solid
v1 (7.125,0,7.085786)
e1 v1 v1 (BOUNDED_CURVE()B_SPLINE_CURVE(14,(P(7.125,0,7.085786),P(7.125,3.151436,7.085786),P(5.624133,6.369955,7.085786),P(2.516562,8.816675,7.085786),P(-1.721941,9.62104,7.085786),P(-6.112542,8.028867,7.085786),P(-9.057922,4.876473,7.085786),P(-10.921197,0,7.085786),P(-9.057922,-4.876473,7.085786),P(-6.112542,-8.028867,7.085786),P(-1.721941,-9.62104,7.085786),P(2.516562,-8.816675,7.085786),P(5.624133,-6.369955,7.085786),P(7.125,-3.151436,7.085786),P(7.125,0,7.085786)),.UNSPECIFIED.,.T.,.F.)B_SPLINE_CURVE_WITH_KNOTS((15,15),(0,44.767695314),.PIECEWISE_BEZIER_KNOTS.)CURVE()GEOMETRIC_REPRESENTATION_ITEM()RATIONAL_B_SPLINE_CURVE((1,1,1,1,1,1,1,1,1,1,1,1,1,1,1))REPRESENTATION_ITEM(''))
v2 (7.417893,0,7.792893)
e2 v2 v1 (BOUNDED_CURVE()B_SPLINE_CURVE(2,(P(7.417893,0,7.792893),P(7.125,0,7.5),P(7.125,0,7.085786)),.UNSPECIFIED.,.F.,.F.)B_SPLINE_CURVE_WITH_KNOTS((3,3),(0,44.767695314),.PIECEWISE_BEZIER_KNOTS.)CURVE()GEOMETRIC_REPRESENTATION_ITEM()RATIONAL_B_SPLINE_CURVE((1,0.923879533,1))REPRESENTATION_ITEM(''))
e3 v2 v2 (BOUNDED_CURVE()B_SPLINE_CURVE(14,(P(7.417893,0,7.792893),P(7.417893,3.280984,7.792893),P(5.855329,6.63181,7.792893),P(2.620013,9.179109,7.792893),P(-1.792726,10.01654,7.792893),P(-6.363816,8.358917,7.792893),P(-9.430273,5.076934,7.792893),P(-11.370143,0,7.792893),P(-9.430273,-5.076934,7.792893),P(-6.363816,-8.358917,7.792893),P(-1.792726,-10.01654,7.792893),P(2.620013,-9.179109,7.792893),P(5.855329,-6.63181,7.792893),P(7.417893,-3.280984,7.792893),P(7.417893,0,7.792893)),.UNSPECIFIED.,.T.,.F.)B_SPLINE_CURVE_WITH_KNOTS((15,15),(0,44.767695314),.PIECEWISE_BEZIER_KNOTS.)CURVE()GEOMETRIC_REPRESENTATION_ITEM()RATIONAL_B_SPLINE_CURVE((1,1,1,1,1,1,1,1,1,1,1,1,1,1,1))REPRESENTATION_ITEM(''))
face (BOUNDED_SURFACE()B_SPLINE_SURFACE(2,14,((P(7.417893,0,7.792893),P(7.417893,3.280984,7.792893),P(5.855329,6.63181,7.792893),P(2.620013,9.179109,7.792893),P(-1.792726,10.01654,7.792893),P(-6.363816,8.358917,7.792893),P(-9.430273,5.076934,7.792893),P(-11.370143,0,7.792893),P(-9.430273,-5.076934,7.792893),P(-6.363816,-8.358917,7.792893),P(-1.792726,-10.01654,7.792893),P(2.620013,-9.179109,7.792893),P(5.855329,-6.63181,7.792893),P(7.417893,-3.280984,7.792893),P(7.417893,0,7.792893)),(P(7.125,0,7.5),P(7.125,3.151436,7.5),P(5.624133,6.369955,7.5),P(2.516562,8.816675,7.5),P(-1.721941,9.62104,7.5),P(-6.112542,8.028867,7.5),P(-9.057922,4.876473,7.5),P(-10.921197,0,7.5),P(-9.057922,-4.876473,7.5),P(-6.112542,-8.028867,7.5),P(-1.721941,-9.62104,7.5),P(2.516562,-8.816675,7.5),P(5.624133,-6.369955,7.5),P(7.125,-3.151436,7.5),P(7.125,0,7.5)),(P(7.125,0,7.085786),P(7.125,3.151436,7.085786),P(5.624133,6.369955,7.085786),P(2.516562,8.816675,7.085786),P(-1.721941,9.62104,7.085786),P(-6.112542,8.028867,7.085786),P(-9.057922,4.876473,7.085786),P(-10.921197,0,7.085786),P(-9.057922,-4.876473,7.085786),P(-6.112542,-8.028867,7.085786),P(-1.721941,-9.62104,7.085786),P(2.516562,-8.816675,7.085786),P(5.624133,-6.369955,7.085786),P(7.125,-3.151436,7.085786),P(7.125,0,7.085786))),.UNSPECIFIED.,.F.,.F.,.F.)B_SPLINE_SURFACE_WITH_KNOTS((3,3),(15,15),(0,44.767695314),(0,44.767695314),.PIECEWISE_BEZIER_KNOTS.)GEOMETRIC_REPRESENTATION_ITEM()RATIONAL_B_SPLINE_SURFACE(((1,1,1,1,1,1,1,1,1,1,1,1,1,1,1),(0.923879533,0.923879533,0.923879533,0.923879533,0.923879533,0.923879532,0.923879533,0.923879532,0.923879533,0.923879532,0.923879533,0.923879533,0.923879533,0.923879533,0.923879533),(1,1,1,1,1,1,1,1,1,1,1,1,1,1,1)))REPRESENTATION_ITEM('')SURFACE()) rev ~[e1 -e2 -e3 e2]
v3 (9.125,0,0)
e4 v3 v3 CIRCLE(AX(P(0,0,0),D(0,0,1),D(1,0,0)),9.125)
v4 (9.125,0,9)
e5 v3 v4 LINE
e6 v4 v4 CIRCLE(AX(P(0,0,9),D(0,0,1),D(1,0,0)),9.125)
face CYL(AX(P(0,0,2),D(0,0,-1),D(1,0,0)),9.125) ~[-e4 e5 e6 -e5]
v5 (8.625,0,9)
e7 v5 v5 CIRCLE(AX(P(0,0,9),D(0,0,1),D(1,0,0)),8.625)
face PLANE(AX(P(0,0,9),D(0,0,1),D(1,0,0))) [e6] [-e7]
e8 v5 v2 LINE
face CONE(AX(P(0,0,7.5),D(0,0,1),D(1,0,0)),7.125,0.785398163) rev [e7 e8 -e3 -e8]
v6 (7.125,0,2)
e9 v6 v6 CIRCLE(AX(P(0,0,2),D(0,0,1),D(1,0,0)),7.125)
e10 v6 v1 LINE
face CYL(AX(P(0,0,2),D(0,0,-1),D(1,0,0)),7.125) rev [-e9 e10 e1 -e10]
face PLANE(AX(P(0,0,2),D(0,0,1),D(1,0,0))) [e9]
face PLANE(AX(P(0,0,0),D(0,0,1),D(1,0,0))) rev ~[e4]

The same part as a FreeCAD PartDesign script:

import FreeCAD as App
import Part
import Sketcher
Q = App.Units.Quantity


def edges_at(feature, points):
    """Names of the edges that pass closest to the given points."""
    edges = feature.Shape.Edges
    near = lambda p: min(range(len(edges)), key=lambda i: edges[i].distToShape(Part.Vertex(*p))[0])
    return sorted({f"Edge{near(p) + 1}" for p in points})

doc = App.newDocument("Part")
body = doc.addObject("PartDesign::Body", "Body")

sketch1 = body.newObject("Sketcher::SketchObject", "Sketch")
sketch1.AttachmentSupport = (doc.getObject("XY_Plane"), [""])
sketch1.MapMode = "FlatFace"
sketch1.addGeometry(Part.Circle(App.Vector(0, 0, 0), App.Vector(0, 0, 1), 9.125), False)
sketch1.addConstraint([
    Sketcher.Constraint("Coincident", 0, 3, -1, 1),
    Sketcher.Constraint("Diameter", 0, Q("18.25 mm")),
])
pad1 = body.newObject("PartDesign::Pad", "Pad")
pad1.Profile = sketch1
pad1.Length = 2

sketch2 = body.newObject("Sketcher::SketchObject", "Sketch001")
sketch2.AttachmentSupport = (doc.getObject("XY_Plane"), [""])
sketch2.MapMode = "FlatFace"
sketch2.AttachmentOffset = App.Placement(App.Vector(0, 0, 2), App.Rotation())
sketch2.addGeometry([
    Part.Circle(App.Vector(0, 0, 0), App.Vector(0, 0, 1), 9.125),
    Part.Circle(App.Vector(0, 0, 0), App.Vector(0, 0, 1), 7.125),
], False)
sketch2.addConstraint([
    Sketcher.Constraint("Coincident", 0, 3, -1, 1),
    Sketcher.Constraint("Coincident", 1, 3, -1, 1),
    Sketcher.Constraint("Diameter", 0, Q("18.25 mm")),
    Sketcher.Constraint("Diameter", 1, Q("14.25 mm")),
])
pad2 = body.newObject("PartDesign::Pad", "Pad001")
pad2.Profile = sketch2
pad2.Length = 7
doc.recompute()

chamfer = body.newObject("PartDesign::Chamfer", "Chamfer")
chamfer.Base = (pad2, edges_at(pad2, [(-7.125, 0, 9)]))
chamfer.Size = 1.5
doc.recompute()

fillet = body.newObject("PartDesign::Fillet", "Fillet")
fillet.Base = (chamfer, edges_at(chamfer, [(-7.125, 0, 7.5)]))
fillet.Radius = 1

doc.recompute()
